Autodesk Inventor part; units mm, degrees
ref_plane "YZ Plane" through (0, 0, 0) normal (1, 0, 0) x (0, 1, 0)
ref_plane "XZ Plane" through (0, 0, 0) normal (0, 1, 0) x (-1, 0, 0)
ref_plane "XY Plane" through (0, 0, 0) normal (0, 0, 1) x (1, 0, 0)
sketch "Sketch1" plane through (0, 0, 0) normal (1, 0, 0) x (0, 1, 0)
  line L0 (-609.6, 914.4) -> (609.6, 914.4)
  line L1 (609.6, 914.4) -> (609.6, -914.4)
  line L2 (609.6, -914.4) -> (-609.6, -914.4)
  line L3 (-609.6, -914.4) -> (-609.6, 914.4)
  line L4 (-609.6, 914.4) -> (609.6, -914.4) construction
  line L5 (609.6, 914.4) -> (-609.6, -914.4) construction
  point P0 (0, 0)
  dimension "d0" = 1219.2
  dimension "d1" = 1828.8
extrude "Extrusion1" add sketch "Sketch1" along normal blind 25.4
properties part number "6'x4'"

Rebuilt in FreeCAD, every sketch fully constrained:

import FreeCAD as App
import Part
import Sketcher
Q = App.Units.Quantity

doc = App.newDocument("Part")
params = doc.addObject("Spreadsheet::Sheet", "Params")
for row, (alias, value) in enumerate([
    ("sketch1_width", "48 in"),
    ("sketch1_height", "72 in"),
    ("pad1_length", "1 in"),
], start=1):
    params.set(f"A{row}", alias)
    params.set(f"B{row}", "=" + value)
    params.setAlias(f"B{row}", alias)

body = doc.addObject("PartDesign::Body", "Body")

sketch1 = body.newObject("Sketcher::SketchObject", "Sketch")
sketch1.AttachmentSupport = (doc.getObject("YZ_Plane"), [""])
sketch1.MapMode = "FlatFace"
sketch1.addGeometry([
    Part.LineSegment(App.Vector(610, 914, 0), App.Vector(-610, 914, 0)),
    Part.LineSegment(App.Vector(-610, 914, 0), App.Vector(-610, -914, 0)),
    Part.LineSegment(App.Vector(-610, -914, 0), App.Vector(610, -914, 0)),
    Part.LineSegment(App.Vector(610, -914, 0), App.Vector(610, 914, 0)),
], False)
sketch1.addConstraint([
    Sketcher.Constraint("Coincident", 0, 2, 1, 1),
    Sketcher.Constraint("Coincident", 1, 2, 2, 1),
    Sketcher.Constraint("Coincident", 2, 2, 3, 1),
    Sketcher.Constraint("Coincident", 3, 2, 0, 1),
    Sketcher.Constraint("Horizontal", 0),
    Sketcher.Constraint("Vertical", 1),
    Sketcher.Constraint("Horizontal", 2),
    Sketcher.Constraint("Vertical", 3),
    Sketcher.Constraint("Symmetric", 0, 2, 2, 2, -1, 1),
    Sketcher.Constraint("DistanceX", 0, 2, 0, 1, Q("48 in")),
    Sketcher.Constraint("DistanceY", 1, 2, 1, 1, Q("72 in")),
])
sketch1.setExpression("Constraints[9]", "Params.sketch1_width")
sketch1.setExpression("Constraints[10]", "Params.sketch1_height")
pad1 = body.newObject("PartDesign::Pad", "Pad")
pad1.Profile = sketch1
pad1.setExpression("Length", "Params.pad1_length")

doc.recompute()
